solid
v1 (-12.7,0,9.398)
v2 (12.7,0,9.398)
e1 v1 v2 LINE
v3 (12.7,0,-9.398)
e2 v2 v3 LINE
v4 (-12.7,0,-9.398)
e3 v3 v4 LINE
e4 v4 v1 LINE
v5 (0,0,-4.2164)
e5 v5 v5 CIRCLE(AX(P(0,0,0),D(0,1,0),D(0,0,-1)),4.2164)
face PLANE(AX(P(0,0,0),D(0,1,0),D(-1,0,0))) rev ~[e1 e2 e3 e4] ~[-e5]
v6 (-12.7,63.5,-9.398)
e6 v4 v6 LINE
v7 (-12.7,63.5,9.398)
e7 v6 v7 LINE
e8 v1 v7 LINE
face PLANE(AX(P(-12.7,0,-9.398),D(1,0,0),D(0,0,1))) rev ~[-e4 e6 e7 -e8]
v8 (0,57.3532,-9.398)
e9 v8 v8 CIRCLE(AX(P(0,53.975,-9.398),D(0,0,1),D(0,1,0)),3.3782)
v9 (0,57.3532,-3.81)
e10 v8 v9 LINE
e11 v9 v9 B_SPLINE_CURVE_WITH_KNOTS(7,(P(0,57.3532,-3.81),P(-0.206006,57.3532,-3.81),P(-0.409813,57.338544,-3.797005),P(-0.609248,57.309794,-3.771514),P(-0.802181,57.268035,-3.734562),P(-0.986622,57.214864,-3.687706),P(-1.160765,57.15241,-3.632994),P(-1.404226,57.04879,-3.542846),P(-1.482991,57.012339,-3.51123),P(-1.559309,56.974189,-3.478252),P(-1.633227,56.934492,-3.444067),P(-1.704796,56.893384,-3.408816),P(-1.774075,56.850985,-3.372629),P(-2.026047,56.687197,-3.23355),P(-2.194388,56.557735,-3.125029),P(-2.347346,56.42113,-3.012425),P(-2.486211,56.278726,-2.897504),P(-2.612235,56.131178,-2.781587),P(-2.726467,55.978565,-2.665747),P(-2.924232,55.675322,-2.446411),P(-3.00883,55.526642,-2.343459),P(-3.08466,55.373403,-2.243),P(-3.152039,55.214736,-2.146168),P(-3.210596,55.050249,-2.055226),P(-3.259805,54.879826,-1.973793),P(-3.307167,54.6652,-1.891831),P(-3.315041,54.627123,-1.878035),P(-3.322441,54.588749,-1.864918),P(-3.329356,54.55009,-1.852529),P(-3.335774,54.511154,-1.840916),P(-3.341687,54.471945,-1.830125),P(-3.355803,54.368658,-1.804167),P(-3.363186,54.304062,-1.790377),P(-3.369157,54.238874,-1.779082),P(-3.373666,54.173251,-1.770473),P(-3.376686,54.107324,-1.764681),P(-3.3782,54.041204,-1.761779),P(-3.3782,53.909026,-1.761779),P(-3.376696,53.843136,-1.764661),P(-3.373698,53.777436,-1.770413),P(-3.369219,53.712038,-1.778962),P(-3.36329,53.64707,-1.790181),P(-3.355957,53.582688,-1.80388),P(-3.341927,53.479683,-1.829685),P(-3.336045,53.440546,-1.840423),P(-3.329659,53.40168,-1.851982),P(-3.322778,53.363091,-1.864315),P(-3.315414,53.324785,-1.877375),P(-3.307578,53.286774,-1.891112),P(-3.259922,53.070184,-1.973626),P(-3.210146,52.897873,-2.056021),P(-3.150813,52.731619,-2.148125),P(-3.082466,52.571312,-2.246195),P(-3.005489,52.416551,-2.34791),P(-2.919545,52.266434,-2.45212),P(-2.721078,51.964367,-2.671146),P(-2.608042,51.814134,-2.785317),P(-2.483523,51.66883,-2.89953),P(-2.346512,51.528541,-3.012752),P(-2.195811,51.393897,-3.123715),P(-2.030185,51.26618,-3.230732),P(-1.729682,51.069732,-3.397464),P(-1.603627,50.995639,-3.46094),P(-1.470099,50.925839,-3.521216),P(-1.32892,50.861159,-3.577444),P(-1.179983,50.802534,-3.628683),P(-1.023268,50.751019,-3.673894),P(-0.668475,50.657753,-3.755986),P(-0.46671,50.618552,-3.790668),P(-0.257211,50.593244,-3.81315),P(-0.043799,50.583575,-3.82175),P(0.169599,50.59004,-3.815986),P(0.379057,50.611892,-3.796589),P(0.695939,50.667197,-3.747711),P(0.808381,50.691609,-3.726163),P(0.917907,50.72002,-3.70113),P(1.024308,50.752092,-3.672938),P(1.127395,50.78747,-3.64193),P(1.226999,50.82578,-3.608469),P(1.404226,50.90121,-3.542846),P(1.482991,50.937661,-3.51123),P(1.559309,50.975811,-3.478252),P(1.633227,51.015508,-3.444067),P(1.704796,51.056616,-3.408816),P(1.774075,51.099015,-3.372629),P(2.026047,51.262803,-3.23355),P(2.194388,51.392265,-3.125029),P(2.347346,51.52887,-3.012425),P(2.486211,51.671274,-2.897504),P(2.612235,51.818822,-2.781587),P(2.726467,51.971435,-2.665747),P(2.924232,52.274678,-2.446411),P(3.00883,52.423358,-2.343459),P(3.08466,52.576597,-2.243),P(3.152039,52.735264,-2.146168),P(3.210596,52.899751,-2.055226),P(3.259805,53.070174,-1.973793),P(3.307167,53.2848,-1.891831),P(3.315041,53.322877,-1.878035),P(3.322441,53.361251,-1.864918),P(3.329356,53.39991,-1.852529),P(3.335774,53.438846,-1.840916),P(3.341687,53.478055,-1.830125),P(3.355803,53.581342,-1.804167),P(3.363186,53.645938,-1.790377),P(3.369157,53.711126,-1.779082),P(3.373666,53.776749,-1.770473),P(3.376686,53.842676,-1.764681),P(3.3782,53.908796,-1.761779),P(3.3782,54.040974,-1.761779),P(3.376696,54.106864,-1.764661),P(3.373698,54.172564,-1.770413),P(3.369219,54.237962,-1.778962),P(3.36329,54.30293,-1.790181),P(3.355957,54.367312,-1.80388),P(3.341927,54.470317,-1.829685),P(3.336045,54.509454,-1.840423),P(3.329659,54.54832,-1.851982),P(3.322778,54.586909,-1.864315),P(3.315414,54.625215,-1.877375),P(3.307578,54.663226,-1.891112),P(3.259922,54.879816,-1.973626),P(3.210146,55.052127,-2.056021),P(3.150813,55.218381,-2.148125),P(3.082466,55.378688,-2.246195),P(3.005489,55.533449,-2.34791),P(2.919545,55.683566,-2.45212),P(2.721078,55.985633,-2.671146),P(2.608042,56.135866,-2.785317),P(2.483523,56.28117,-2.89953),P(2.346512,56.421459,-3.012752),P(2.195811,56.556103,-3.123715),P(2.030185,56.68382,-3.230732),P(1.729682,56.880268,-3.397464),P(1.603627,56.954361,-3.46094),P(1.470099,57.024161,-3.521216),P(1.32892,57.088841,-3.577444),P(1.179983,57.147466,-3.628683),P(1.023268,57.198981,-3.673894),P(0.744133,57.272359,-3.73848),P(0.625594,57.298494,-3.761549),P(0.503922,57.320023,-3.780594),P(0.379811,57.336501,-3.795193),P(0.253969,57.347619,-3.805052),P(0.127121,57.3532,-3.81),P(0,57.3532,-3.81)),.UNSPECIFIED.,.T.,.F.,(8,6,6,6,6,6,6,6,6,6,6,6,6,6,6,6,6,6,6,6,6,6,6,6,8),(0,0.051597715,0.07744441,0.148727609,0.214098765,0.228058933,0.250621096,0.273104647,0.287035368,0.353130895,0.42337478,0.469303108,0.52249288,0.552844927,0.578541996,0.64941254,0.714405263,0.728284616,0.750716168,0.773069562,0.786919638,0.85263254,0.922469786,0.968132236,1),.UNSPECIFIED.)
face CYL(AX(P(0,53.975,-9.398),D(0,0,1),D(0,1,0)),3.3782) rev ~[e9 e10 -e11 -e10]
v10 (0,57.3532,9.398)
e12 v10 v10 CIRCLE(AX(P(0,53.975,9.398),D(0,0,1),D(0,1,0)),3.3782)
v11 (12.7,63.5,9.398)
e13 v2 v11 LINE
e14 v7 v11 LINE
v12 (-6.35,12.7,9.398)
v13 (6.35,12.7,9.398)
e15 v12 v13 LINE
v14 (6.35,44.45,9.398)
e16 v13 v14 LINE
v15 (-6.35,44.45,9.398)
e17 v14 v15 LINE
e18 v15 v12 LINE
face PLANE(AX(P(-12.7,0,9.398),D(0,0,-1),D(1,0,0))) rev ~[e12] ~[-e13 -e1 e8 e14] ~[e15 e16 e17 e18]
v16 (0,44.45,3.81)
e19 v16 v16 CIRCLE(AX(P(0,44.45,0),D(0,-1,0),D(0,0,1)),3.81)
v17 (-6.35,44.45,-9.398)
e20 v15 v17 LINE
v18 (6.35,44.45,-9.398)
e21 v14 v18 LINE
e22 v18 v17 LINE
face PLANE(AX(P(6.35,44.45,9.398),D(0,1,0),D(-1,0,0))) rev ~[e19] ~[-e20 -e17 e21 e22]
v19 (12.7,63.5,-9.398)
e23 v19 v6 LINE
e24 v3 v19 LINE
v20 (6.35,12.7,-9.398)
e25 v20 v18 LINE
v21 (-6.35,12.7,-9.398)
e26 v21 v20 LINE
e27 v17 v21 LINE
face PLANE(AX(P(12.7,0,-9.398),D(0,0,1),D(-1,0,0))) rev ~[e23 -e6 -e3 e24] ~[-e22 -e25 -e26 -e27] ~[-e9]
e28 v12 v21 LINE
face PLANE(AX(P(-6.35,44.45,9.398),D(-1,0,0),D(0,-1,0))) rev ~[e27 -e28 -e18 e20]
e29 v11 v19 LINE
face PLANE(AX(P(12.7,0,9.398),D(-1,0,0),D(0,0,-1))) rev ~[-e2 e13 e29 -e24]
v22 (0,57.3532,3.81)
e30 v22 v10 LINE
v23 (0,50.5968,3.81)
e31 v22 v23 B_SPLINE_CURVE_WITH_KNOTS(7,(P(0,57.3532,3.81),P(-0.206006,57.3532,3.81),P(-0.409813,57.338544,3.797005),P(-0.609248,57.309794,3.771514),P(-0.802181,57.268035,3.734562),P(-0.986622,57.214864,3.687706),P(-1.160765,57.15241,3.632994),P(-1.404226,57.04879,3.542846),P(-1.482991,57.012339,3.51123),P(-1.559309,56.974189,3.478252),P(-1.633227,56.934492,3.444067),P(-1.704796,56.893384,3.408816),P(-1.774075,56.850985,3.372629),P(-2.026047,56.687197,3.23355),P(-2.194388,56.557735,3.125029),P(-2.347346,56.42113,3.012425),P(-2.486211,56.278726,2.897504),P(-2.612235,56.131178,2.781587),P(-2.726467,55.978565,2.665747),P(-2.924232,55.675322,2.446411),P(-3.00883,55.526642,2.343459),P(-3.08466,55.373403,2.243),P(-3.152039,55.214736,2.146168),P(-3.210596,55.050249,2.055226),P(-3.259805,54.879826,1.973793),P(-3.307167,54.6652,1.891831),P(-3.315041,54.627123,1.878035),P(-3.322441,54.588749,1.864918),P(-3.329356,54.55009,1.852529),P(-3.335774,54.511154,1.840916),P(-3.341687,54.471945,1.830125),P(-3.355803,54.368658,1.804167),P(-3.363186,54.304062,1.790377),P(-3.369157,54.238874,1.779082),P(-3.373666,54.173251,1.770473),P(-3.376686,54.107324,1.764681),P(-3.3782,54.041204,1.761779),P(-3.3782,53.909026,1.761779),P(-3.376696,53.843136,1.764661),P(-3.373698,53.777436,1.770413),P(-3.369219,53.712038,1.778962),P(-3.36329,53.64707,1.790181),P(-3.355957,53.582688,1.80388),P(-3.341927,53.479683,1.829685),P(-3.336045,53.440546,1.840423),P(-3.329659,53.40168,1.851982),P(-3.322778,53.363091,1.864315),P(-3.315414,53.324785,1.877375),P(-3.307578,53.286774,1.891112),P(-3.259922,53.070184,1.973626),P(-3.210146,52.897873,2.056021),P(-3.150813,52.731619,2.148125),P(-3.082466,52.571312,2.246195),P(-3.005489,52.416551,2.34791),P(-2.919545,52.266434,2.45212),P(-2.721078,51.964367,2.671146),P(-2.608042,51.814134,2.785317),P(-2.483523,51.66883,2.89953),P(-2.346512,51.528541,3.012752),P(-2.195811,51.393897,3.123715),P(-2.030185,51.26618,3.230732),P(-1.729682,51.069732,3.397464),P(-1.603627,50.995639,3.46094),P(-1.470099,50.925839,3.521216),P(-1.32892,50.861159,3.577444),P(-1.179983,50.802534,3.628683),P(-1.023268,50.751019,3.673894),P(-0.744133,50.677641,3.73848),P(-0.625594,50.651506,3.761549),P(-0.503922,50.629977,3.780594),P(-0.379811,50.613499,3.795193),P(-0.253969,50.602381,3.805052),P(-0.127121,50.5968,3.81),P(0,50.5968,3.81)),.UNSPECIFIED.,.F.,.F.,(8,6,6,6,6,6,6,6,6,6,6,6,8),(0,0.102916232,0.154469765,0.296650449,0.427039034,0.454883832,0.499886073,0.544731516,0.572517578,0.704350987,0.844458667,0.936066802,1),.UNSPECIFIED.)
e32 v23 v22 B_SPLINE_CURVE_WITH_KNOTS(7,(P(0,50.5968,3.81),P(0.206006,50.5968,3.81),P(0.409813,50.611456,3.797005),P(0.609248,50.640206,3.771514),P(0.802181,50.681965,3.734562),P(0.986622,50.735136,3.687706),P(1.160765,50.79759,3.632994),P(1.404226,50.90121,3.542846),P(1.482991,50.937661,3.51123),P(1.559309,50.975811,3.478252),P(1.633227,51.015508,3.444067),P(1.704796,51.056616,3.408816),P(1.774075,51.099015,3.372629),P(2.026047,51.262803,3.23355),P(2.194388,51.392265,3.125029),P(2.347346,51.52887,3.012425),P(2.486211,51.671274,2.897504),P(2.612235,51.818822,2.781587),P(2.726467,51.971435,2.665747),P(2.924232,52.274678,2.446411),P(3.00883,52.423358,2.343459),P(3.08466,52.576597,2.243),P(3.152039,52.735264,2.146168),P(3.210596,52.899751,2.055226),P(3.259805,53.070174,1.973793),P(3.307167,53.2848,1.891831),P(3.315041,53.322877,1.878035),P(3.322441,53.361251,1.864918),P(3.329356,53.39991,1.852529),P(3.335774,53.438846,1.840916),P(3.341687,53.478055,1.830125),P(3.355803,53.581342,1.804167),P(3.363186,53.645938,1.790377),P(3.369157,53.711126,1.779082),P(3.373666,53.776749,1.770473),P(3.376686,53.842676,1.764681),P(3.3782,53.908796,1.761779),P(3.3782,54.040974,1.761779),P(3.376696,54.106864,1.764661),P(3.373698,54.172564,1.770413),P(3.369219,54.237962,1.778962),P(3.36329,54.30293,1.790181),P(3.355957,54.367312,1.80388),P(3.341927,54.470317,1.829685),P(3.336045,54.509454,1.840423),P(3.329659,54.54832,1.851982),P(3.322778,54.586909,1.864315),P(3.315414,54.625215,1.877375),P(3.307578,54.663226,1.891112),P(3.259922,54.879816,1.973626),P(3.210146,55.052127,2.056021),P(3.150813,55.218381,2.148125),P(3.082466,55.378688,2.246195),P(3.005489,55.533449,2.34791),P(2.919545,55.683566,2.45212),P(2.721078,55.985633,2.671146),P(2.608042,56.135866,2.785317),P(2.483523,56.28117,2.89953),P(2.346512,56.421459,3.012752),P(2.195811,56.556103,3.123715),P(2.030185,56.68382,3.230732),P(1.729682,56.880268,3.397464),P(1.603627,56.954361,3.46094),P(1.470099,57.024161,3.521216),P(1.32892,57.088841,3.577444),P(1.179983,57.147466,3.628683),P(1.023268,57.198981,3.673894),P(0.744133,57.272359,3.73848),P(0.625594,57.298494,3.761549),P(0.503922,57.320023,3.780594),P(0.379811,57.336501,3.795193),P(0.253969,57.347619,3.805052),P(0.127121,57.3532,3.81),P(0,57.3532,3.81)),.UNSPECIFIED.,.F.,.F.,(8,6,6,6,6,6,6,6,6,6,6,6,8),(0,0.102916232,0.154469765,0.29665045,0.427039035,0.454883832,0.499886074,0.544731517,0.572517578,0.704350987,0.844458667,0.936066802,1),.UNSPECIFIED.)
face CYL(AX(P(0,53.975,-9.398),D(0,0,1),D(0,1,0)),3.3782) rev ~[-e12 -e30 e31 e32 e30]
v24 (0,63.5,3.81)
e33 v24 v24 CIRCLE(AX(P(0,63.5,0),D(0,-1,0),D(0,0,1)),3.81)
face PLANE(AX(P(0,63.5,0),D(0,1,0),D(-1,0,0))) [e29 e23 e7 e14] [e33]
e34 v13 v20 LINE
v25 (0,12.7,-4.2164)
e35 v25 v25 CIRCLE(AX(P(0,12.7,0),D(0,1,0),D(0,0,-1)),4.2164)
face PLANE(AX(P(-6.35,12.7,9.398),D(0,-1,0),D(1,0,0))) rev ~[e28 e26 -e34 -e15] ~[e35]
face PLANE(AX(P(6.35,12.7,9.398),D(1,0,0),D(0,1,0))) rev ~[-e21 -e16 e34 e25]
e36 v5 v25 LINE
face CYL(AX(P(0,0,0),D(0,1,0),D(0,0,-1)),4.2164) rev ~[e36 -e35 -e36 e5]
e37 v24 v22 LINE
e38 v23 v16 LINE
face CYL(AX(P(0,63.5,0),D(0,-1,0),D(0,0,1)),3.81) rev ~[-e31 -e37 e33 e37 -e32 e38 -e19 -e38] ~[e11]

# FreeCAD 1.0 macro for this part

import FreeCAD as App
import Part
import Sketcher

V = App.Vector
Q = App.Units.Quantity

doc = App.newDocument("Part")
params = doc.addObject("Spreadsheet::Sheet", "Params")
for row, (alias, value) in enumerate([
    ("sketch1_width", "1 in"),
    ("sketch1_height", "0.74 in"),
    ("pad1_length", "2.5 in"),
    ("sketch2_diameter", "0.332 in"),
    ("hole_diameter", "0.332 in"),
    ("hole_depth", "0.5 in"),
    ("sketch3_diameter", "0.266 in"),
    ("hole2_diameter", "0.266 in"),
    ("sketch4_width", "0.5 in"),
    ("sketch4_height", "1.25 in"),
    ("sketch5_diameter", "0.3 in"),
    ("hole3_diameter", "0.3 in"),
    ("hole3_depth", "0.75 in"),
], start=1):
    params.set(f"A{row}", alias)
    params.set(f"B{row}", "=" + value)
    params.setAlias(f"B{row}", alias)

body = doc.addObject("PartDesign::Body", "Body")

sketch1 = body.newObject("Sketcher::SketchObject", "Sketch")
sketch1.AttachmentSupport = (doc.getObject("XZ_Plane"), [""])
sketch1.MapMode = "FlatFace"
sketch1.addGeometry([
    Part.LineSegment(V(-13, -9, 0), V(-13, 9, 0)),
    Part.LineSegment(V(-13, 9, 0), V(13, 9, 0)),
    Part.LineSegment(V(13, 9, 0), V(13, -9, 0)),
    Part.LineSegment(V(13, -9, 0), V(-13, -9, 0)),
], False)
sketch1.addConstraint([
    Sketcher.Constraint("Coincident", 0, 2, 1, 1),
    Sketcher.Constraint("Coincident", 1, 2, 2, 1),
    Sketcher.Constraint("Coincident", 2, 2, 3, 1),
    Sketcher.Constraint("Coincident", 3, 2, 0, 1),
    Sketcher.Constraint("Vertical", 0),
    Sketcher.Constraint("Horizontal", 1),
    Sketcher.Constraint("Vertical", 2),
    Sketcher.Constraint("Horizontal", 3),
    Sketcher.Constraint("Symmetric", 0, 2, 2, 2, -1, 1),
    Sketcher.Constraint("DistanceX", 1, 1, 1, 2, Q("1 in")),
    Sketcher.Constraint("DistanceY", 0, 1, 0, 2, Q("0.74 in")),
])
sketch1.setExpression("Constraints[9]", "Params.sketch1_width")
sketch1.setExpression("Constraints[10]", "Params.sketch1_height")
pad1 = body.newObject("PartDesign::Pad", "Pad")
pad1.Profile = sketch1
pad1.setExpression("Length", "Params.pad1_length")
pad1.Reversed = True

sketch2 = body.newObject("Sketcher::SketchObject", "Sketch001")
sketch2.AttachmentSupport = (doc.getObject("XZ_Plane"), [""])
sketch2.MapMode = "FlatFace"
sketch2.addGeometry(Part.Circle(V(0, 0, 0), V(0, 0, 1), 4.2), False)
sketch2.addConstraint([
    Sketcher.Constraint("Coincident", 0, 3, -1, 1),
    Sketcher.Constraint("Diameter", 0, Q("0.332 in")),
])
sketch2.setExpression("Constraints[1]", "Params.sketch2_diameter")
doc.recompute()
hole = body.newObject("PartDesign::Hole", "Hole")
hole.Profile = sketch2
hole.ThreadType = "None"
hole.setExpression("Diameter", "Params.hole_diameter")
hole.DepthType = "Dimension"
hole.setExpression("Depth", "Params.hole_depth")
hole.DrillPoint = "Flat"

sketch3 = body.newObject("Sketcher::SketchObject", "Sketch002")
sketch3.AttachmentSupport = (doc.getObject("XY_Plane"), [""])
sketch3.MapMode = "FlatFace"
sketch3.AttachmentOffset = App.Placement(V(0, 0, -0.37 * 25.4), App.Rotation())
sketch3.addGeometry(Part.Circle(V(0, 54, 0), V(0, 0, 1), 3.4), False)
sketch3.addConstraint([
    Sketcher.Constraint("PointOnObject", 0, 3, -2),
    Sketcher.Constraint("Diameter", 0, Q("0.266 in")),
    Sketcher.Constraint("DistanceY", -1, 1, 0, 3, Q("2.125 in")),
])
sketch3.setExpression("Constraints[1]", "Params.sketch3_diameter")
doc.recompute()
hole2 = body.newObject("PartDesign::Hole", "Hole001")
hole2.Profile = sketch3
hole2.ThreadType = "None"
hole2.setExpression("Diameter", "Params.hole2_diameter")
hole2.DepthType = "ThroughAll"
hole2.Reversed = True

sketch4 = body.newObject("Sketcher::SketchObject", "Sketch003")
sketch4.AttachmentSupport = (doc.getObject("XY_Plane"), [""])
sketch4.MapMode = "FlatFace"
sketch4.AttachmentOffset = App.Placement(V(0, 0, 0.37 * 25.4), App.Rotation())
sketch4.addGeometry([
    Part.LineSegment(V(-6, 13, 0), V(6, 13, 0)),
    Part.LineSegment(V(6, 13, 0), V(6, 44, 0)),
    Part.LineSegment(V(6, 44, 0), V(-6, 44, 0)),
    Part.LineSegment(V(-6, 44, 0), V(-6, 13, 0)),
], False)
sketch4.addConstraint([
    Sketcher.Constraint("Coincident", 0, 2, 1, 1),
    Sketcher.Constraint("Coincident", 1, 2, 2, 1),
    Sketcher.Constraint("Coincident", 2, 2, 3, 1),
    Sketcher.Constraint("Coincident", 3, 2, 0, 1),
    Sketcher.Constraint("Horizontal", 0),
    Sketcher.Constraint("Vertical", 1),
    Sketcher.Constraint("Horizontal", 2),
    Sketcher.Constraint("Vertical", 3),
    Sketcher.Constraint("DistanceX", 0, 1, 0, 2, Q("0.5 in")),
    Sketcher.Constraint("DistanceY", 1, 1, 1, 2, Q("1.25 in")),
    Sketcher.Constraint("DistanceY", -1, 1, 0, 2, Q("0.5 in")),
    Sketcher.Constraint("DistanceX", -1, 1, 0, 2, Q("0.25 in")),
])
sketch4.setExpression("Constraints[8]", "Params.sketch4_width")
sketch4.setExpression("Constraints[9]", "Params.sketch4_height")
pocket1 = body.newObject("PartDesign::Pocket", "Pocket")
pocket1.Profile = sketch4
pocket1.Type = "ThroughAll"

sketch5 = body.newObject("Sketcher::SketchObject", "Sketch004")
sketch5.AttachmentSupport = (doc.getObject("XZ_Plane"), [""])
sketch5.MapMode = "FlatFace"
sketch5.AttachmentOffset = App.Placement(V(0, 0, -2.5 * 25.4), App.Rotation())
sketch5.addGeometry(Part.Circle(V(0, 0, 0), V(0, 0, 1), 3.8), False)
sketch5.addConstraint([
    Sketcher.Constraint("Coincident", 0, 3, -1, 1),
    Sketcher.Constraint("Diameter", 0, Q("0.3 in")),
])
sketch5.setExpression("Constraints[1]", "Params.sketch5_diameter")
doc.recompute()
hole3 = body.newObject("PartDesign::Hole", "Hole002")
hole3.Profile = sketch5
hole3.ThreadType = "None"
hole3.setExpression("Diameter", "Params.hole3_diameter")
hole3.DepthType = "Dimension"
hole3.setExpression("Depth", "Params.hole3_depth")
hole3.DrillPoint = "Angled"
hole3.DrillPointAngle = 118
hole3.Reversed = True

doc.recompute()
